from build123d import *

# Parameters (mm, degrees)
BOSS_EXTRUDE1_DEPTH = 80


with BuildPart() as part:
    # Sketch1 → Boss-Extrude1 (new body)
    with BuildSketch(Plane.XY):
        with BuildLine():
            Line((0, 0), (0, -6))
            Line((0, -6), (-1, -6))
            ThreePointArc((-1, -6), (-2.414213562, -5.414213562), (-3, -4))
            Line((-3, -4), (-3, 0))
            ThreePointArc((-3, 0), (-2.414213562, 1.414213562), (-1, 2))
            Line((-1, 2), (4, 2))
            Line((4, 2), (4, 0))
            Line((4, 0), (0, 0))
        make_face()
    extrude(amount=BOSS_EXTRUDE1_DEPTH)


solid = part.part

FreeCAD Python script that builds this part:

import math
import FreeCAD as App
import Part
import Sketcher
Q = App.Units.Quantity

doc = App.newDocument("Part")
body = doc.addObject("PartDesign::Body", "Body")

# Sketch on XY plane
sketch1 = doc.addObject("Sketcher::SketchObject", "Sketch")
body.addObject(sketch1)
sketch1.AttachmentSupport = (doc.XY_Plane, [""])
sketch1.MapMode = "FlatFace"
sketch1.addGeometry([
    Part.LineSegment(App.Vector(0, -6, 0), App.Vector(0, 0, 0)),  # 0
    Part.LineSegment(App.Vector(0, 0, 0), App.Vector(4, 0, 0)),  # 1
    Part.LineSegment(App.Vector(4, 0, 0), App.Vector(4, 2, 0)),  # 2
    Part.LineSegment(App.Vector(4, 2, 0), App.Vector(-1, 2, 0)),  # 3
    Part.ArcOfCircle(Part.Circle(App.Vector(-1, 0, 0), App.Vector(0, 0, 1), 2), math.radians(90), math.radians(180)),  # 4
    Part.LineSegment(App.Vector(-3, 0, 0), App.Vector(-3, -4, 0)),  # 5
    Part.ArcOfCircle(Part.Circle(App.Vector(-1, -4, 0), App.Vector(0, 0, 1), 2), math.radians(-180), math.radians(-90)),  # 6
    Part.LineSegment(App.Vector(-1, -6, 0), App.Vector(0, -6, 0)),  # 7
], False)
sketch1.addConstraint([
    Sketcher.Constraint("Coincident", 0, 2, 1, 1),
    Sketcher.Constraint("Coincident", 1, 2, 2, 1),
    Sketcher.Constraint("Coincident", 2, 2, 3, 1),
    Sketcher.Constraint("Tangent", 3, 2, 4, 1),
    Sketcher.Constraint("Tangent", 4, 2, 5, 1),
    Sketcher.Constraint("Tangent", 5, 2, 6, 1),
    Sketcher.Constraint("Tangent", 6, 2, 7, 1),
    Sketcher.Constraint("Coincident", 7, 2, 0, 1),
    Sketcher.Constraint("Vertical", 0),
    Sketcher.Constraint("Horizontal", 1),
    Sketcher.Constraint("Vertical", 2),
    Sketcher.Constraint("Horizontal", 3),
    Sketcher.Constraint("Vertical", 5),
    Sketcher.Constraint("Horizontal", 7),
    Sketcher.Constraint("Coincident", 0, 2, -1, 1),
    Sketcher.Constraint("Equal", 4, 6),
    Sketcher.Constraint("PointOnObject", 4, 3, -1),
    Sketcher.Constraint("Equal", 1, 5),
    Sketcher.Constraint("Radius", 4, Q("2 mm")),
    Sketcher.Constraint("DistanceX", 1, 1, 1, 2, Q("4 mm")),
    Sketcher.Constraint("DistanceX", 3, 2, 3, 1, Q("5 mm")),
])
pad1 = doc.addObject("PartDesign::Pad", "Pad")
body.addObject(pad1)
pad1.Profile = sketch1
pad1.Length = 80

doc.recompute()
